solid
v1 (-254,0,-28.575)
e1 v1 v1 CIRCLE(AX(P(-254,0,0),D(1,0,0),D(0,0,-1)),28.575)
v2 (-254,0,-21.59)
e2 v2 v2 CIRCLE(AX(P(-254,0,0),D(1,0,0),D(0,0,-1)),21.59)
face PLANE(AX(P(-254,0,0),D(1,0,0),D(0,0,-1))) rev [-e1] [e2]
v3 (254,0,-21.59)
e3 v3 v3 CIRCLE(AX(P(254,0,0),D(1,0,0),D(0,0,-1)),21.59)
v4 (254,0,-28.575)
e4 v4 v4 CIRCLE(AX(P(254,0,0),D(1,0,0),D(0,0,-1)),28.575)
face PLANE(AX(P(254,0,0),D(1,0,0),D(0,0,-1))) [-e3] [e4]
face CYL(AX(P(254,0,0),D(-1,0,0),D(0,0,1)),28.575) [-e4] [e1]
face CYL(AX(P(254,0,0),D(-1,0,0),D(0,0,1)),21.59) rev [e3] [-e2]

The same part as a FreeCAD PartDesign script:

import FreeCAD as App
import Part
import Sketcher

V = App.Vector
Q = App.Units.Quantity

doc = App.newDocument("Part")
params = doc.addObject("Spreadsheet::Sheet", "Params")
for row, (alias, value) in enumerate([
    ("sketch1_diameter", "1.7 in"),
    ("sketch1_diameter2", "2.25 in"),
    ("pad1_length", "20 in"),
], start=1):
    params.set(f"A{row}", alias)
    params.set(f"B{row}", "=" + value)
    params.setAlias(f"B{row}", alias)

body = doc.addObject("PartDesign::Body", "Body")

# Sketch on YZ plane
sketch1 = body.newObject("Sketcher::SketchObject", "Sketch")
sketch1.AttachmentSupport = (doc.getObject("YZ_Plane"), [""])
sketch1.MapMode = "FlatFace"
sketch1.addGeometry([
    Part.Circle(V(0, 0, 0), V(0, 0, 1), 29),
    Part.Circle(V(0, 0, 0), V(0, 0, 1), 22),
], False)
sketch1.addConstraint([
    Sketcher.Constraint("Coincident", 0, 3, -1, 1),
    Sketcher.Constraint("Coincident", 1, 3, -1, 1),
    Sketcher.Constraint("Diameter", 1, Q("1.7 in")),
    Sketcher.Constraint("Diameter", 0, Q("2.25 in")),
])
sketch1.setExpression("Constraints[2]", "Params.sketch1_diameter")
sketch1.setExpression("Constraints[3]", "Params.sketch1_diameter2")
pad1 = body.newObject("PartDesign::Pad", "Pad")
pad1.Profile = sketch1
pad1.setExpression("Length", "Params.pad1_length")
pad1.Midplane = True

doc.recompute()
